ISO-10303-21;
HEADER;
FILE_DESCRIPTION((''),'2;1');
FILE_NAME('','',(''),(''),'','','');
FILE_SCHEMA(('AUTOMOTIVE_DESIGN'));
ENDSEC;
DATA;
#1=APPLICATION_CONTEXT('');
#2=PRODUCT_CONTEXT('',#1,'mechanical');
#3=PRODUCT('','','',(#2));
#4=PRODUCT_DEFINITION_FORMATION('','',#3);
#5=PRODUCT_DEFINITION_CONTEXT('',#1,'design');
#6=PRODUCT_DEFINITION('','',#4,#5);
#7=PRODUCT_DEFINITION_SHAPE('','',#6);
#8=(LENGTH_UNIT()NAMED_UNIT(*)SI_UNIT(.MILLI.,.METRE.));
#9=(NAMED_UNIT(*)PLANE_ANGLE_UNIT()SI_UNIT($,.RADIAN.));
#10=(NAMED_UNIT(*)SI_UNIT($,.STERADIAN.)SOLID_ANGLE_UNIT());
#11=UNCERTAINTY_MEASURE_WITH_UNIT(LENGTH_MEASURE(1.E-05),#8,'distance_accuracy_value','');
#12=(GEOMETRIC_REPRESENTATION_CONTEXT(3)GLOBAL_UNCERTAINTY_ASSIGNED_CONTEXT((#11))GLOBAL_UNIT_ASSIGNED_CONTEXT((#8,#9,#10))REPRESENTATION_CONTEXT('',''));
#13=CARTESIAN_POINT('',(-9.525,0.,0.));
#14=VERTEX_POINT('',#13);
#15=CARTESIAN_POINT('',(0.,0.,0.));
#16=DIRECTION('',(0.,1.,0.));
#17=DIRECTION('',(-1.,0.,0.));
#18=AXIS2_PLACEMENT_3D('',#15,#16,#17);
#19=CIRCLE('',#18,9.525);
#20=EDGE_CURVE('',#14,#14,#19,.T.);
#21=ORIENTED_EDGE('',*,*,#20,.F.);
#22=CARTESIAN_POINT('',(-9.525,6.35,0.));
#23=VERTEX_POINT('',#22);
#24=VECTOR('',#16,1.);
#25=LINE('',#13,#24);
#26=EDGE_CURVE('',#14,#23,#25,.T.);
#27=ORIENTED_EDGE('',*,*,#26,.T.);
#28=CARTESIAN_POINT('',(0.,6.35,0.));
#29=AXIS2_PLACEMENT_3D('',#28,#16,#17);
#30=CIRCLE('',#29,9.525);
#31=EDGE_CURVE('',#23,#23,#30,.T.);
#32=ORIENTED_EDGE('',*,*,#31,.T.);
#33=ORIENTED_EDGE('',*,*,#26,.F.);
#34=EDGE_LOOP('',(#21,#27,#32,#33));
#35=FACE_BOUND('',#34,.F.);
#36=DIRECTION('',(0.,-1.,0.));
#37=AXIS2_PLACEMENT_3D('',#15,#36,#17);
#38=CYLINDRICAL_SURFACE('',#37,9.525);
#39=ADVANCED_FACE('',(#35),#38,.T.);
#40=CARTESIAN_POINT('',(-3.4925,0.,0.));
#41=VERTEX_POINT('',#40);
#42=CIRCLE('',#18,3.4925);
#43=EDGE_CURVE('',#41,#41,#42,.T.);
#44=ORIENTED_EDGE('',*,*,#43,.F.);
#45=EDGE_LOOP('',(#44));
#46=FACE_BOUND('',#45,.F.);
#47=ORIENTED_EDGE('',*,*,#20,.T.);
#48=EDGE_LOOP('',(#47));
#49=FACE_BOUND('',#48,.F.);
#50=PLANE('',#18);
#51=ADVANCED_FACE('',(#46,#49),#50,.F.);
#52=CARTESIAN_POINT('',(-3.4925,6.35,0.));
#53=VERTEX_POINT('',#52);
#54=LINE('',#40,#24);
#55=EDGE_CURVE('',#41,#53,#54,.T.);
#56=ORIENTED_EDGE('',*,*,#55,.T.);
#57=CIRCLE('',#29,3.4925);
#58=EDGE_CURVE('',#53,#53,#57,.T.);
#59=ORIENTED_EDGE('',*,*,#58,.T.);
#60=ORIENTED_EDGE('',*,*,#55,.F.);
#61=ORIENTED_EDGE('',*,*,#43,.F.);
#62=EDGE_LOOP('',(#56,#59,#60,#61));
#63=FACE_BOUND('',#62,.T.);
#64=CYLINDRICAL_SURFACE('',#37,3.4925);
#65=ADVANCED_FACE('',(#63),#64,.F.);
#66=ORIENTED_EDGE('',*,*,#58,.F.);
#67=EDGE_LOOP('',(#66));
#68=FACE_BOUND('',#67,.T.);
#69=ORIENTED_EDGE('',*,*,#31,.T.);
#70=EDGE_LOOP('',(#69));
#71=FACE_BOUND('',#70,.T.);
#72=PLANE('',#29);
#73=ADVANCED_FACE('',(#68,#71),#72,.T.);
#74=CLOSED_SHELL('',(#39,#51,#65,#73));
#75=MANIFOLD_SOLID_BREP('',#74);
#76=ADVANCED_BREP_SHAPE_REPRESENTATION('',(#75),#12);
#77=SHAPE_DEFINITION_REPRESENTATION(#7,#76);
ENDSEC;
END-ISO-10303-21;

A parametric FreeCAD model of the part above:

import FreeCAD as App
import Part
import Sketcher
from FreeCAD import Vector
Q = App.Units.Quantity

doc = App.newDocument("Part")
params = doc.addObject("Spreadsheet::Sheet", "Params")
for row, (alias, value) in enumerate([
    ("sketch1_diameter", "0.75 in"),
    ("sketch1_diameter2", "0.275 in"),
    ("pad1_length", "0.25 in"),
], start=1):
    params.set(f"A{row}", alias)
    params.set(f"B{row}", "=" + value)
    params.setAlias(f"B{row}", alias)

body = doc.addObject("PartDesign::Body", "Body")

sketch1 = body.newObject("Sketcher::SketchObject", "Sketch")
sketch1.AttachmentSupport = (doc.getObject("XZ_Plane"), [""])
sketch1.MapMode = "FlatFace"
sketch1.addGeometry([
    Part.Circle(Vector(0, 0, 0), Vector(0, 0, 1), 9.525),
    Part.Circle(Vector(0, 0, 0), Vector(0, 0, 1), 3.4925),
], False)
sketch1.addConstraint([
    Sketcher.Constraint("Coincident", 0, 3, -1, 1),
    Sketcher.Constraint("Coincident", 1, 3, -1, 1),
    Sketcher.Constraint("Diameter", 0, Q("0.75 in")),
    Sketcher.Constraint("Diameter", 1, Q("0.275 in")),
])
sketch1.setExpression("Constraints[2]", "Params.sketch1_diameter")
sketch1.setExpression("Constraints[3]", "Params.sketch1_diameter2")
pad1 = body.newObject("PartDesign::Pad", "Pad")
pad1.Profile = sketch1
pad1.setExpression("Length", "Params.pad1_length")
pad1.Reversed = True

doc.recompute()
